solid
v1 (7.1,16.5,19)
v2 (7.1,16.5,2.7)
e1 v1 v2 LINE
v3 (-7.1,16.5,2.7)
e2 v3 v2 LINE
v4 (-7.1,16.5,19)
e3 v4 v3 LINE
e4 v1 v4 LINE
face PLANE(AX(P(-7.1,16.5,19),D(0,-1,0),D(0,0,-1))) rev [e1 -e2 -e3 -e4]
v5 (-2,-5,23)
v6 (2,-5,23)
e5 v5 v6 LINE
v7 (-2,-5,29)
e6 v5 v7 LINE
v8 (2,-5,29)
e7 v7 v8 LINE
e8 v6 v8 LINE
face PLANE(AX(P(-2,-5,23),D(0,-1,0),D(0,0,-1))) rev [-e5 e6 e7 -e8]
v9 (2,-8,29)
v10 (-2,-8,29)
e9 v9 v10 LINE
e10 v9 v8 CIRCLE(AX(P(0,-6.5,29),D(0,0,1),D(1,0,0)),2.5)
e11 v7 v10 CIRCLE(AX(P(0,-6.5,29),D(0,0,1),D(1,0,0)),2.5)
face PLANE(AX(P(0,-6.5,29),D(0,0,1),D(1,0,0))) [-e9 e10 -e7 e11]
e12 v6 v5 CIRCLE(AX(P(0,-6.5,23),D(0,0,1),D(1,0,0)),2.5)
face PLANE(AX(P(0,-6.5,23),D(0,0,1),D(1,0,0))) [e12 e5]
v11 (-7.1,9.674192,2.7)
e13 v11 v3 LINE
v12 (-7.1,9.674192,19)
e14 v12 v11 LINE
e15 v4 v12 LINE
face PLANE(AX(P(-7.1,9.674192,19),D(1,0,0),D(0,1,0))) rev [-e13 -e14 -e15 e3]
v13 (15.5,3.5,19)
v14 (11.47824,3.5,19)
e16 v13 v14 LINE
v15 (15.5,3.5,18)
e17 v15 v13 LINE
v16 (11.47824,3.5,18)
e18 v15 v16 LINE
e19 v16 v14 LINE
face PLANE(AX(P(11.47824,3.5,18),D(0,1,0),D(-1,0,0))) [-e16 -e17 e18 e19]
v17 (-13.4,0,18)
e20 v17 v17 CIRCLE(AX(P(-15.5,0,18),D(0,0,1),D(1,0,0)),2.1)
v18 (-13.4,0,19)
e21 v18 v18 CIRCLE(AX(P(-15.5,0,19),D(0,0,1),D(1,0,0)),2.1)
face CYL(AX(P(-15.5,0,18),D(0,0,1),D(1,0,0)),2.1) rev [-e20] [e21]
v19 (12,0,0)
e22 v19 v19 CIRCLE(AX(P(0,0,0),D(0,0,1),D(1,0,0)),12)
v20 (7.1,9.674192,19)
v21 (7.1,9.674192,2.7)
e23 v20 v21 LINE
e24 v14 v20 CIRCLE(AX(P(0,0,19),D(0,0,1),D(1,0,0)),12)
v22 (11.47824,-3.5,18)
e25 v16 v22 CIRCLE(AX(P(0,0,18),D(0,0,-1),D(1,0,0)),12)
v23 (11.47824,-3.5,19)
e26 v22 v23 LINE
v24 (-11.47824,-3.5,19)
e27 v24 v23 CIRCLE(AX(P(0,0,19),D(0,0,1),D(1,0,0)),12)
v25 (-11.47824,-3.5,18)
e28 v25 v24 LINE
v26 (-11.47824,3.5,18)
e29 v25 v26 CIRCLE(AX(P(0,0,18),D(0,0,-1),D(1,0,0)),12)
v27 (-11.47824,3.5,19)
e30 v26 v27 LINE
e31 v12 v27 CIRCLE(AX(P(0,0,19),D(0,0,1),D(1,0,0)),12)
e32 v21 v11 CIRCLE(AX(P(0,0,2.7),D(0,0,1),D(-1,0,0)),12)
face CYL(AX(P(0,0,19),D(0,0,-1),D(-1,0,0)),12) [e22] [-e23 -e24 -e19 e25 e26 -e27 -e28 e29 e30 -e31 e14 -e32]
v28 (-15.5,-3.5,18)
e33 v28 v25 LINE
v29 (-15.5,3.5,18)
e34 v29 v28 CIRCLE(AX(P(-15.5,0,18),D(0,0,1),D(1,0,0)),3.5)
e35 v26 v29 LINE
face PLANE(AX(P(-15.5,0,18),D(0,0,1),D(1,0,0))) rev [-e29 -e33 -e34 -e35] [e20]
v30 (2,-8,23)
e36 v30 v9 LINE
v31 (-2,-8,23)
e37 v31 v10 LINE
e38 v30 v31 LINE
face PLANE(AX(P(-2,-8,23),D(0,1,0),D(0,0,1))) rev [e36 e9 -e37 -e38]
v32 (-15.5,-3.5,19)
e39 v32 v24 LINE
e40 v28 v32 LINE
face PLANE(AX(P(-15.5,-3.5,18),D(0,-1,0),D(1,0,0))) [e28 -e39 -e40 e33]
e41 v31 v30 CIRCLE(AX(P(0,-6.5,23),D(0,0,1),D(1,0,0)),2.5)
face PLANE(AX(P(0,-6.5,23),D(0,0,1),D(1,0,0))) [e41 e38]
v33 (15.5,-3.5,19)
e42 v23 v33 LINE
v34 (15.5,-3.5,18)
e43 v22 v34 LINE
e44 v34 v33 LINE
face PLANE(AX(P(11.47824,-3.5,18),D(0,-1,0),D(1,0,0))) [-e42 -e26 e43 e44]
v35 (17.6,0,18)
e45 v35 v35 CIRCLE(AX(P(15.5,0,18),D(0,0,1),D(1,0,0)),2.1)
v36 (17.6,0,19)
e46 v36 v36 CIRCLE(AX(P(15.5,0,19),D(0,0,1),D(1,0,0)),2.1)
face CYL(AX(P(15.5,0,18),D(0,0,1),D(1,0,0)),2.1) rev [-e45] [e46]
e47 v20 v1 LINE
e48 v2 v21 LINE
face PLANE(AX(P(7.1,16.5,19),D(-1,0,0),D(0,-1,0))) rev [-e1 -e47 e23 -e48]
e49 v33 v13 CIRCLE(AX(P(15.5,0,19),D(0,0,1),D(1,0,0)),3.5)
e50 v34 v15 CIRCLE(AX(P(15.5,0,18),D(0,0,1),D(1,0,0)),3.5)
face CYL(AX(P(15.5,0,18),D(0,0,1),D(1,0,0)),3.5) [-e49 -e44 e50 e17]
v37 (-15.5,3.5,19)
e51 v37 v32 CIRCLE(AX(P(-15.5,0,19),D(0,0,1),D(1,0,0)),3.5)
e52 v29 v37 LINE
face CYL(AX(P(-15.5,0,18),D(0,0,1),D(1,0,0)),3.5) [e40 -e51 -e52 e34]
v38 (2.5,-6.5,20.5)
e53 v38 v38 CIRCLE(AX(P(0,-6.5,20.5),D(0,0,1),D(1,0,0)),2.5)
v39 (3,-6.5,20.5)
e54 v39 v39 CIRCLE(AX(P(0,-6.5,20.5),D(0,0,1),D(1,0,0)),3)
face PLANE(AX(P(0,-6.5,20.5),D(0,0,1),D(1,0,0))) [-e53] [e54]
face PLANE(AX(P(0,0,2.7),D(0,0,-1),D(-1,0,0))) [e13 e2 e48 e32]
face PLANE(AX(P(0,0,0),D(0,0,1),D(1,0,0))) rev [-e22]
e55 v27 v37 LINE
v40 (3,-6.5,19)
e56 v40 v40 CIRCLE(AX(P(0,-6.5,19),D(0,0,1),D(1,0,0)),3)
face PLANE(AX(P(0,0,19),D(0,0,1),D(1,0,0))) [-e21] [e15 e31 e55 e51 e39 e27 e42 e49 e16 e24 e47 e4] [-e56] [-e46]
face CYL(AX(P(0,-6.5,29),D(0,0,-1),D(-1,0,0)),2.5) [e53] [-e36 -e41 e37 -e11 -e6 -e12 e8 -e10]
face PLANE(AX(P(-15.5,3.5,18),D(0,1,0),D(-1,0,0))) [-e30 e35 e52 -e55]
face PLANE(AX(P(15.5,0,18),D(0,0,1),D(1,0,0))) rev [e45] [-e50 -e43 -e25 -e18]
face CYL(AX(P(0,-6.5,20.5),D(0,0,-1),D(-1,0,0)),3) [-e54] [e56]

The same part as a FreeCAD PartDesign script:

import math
import FreeCAD as App
import Part
import Sketcher
from FreeCAD import Vector

doc = App.newDocument("Part")
body = doc.addObject("PartDesign::Body", "Body")

sketch1 = doc.addObject("Sketcher::SketchObject", "Sketch")
body.addObject(sketch1)
sketch1.AttachmentSupport = (doc.XY_Plane, [""])
sketch1.MapMode = "FlatFace"
sketch1.addGeometry([
    Part.LineSegment(Vector(-7, 16, 0), Vector(-7, 10, 0)),
    Part.ArcOfCircle(Part.Circle(Vector(0, 0, 0), Vector(0, 0, 1), 12), math.radians(126), math.radians(414)),
    Part.LineSegment(Vector(7, 10, 0), Vector(7, 16, 0)),
    Part.LineSegment(Vector(7, 16, 0), Vector(-7, 16, 0)),
], False)
sketch1.addConstraint([
    Sketcher.Constraint("Coincident", 0, 2, 1, 1),
    Sketcher.Constraint("Coincident", 1, 2, 2, 1),
    Sketcher.Constraint("Coincident", 2, 2, 3, 1),
    Sketcher.Constraint("Coincident", 3, 2, 0, 1),
    Sketcher.Constraint("Vertical", 0),
    Sketcher.Constraint("Vertical", 2),
    Sketcher.Constraint("Horizontal", 3),
    Sketcher.Constraint("Coincident", 1, 3, -1, 1),
    Sketcher.Constraint("Horizontal", 0, 2, 1, 2),
    Sketcher.Constraint("Radius", 1, 12.0),
    Sketcher.Constraint("DistanceX", 3, 2, 3, 1, 14.2),
    Sketcher.Constraint("DistanceY", -1, 1, 2, 2, 16.5),
])
pad1 = doc.addObject("PartDesign::Pad", "Pad")
body.addObject(pad1)
pad1.Profile = sketch1
pad1.Length = 19

sketch2 = doc.addObject("Sketcher::SketchObject", "Sketch001")
body.addObject(sketch2)
sketch2.AttachmentSupport = (doc.XY_Plane, [""])
sketch2.MapMode = "FlatFace"
sketch2.addGeometry([
    Part.LineSegment(Vector(-7, 10, 0), Vector(-7, 16, 0)),
    Part.LineSegment(Vector(-7, 16, 0), Vector(7, 16, 0)),
    Part.LineSegment(Vector(7, 16, 0), Vector(7, 10, 0)),
    Part.ArcOfCircle(Part.Circle(Vector(0, 0, 0), Vector(0, 0, 1), 12), math.radians(54), math.radians(126)),
], False)
sketch2.addConstraint([
    Sketcher.Constraint("Coincident", 0, 2, 1, 1),
    Sketcher.Constraint("Coincident", 1, 2, 2, 1),
    Sketcher.Constraint("Coincident", 2, 2, 3, 1),
    Sketcher.Constraint("Coincident", 3, 2, 0, 1),
    Sketcher.Constraint("Vertical", 0),
    Sketcher.Constraint("Horizontal", 1),
    Sketcher.Constraint("Vertical", 2),
    Sketcher.Constraint("Coincident", 3, 3, -1, 1),
    Sketcher.Constraint("Horizontal", 2, 2, 3, 2),
    Sketcher.Constraint("Radius", 3, 12.0),
    Sketcher.Constraint("DistanceX", 1, 1, 1, 2, 14.2),
    Sketcher.Constraint("DistanceY", -1, 1, 0, 2, 16.5),
])
pocket1 = doc.addObject("PartDesign::Pocket", "Pocket")
body.addObject(pocket1)
pocket1.Profile = sketch2
pocket1.Length = 2.7
pocket1.Reversed = True

sketch3 = doc.addObject("Sketcher::SketchObject", "Sketch002")
body.addObject(sketch3)
sketch3.AttachmentSupport = (doc.XY_Plane, [""])
sketch3.MapMode = "FlatFace"
sketch3.AttachmentOffset = App.Placement(Vector(0, 0, 19), App.Rotation())
sketch3.addGeometry([
    Part.LineSegment(Vector(-11.5, 3.5, 0), Vector(-15.5, 3.5, 0)),
    Part.ArcOfCircle(Part.Circle(Vector(-15.5, 0, 0), Vector(0, 0, 1), 3.5), math.radians(90), math.radians(270)),
    Part.LineSegment(Vector(-15.5, -3.5, 0), Vector(-11.5, -3.5, 0)),
    Part.ArcOfCircle(Part.Circle(Vector(0, 0, 0), Vector(0, 0, 1), 12), math.radians(163), math.radians(197)),
    Part.Circle(Vector(-15.5, 0, 0), Vector(0, 0, 1), 2.1),
    Part.LineSegment(Vector(15.5, 3.5, 0), Vector(11.5, 3.5, 0)),
    Part.ArcOfCircle(Part.Circle(Vector(0, 0, 0), Vector(0, 0, 1), 12), math.radians(-17), math.radians(17)),
    Part.LineSegment(Vector(11.5, -3.5, 0), Vector(15.5, -3.5, 0)),
    Part.ArcOfCircle(Part.Circle(Vector(15.5, 0, 0), Vector(0, 0, 1), 3.5), math.radians(-90), math.radians(90)),
    Part.Circle(Vector(15.5, 0, 0), Vector(0, 0, 1), 2.1),
], False)
sketch3.addConstraint([
    Sketcher.Constraint("Tangent", 0, 2, 1, 1),
    Sketcher.Constraint("Tangent", 1, 2, 2, 1),
    Sketcher.Constraint("Coincident", 2, 2, 3, 2),
    Sketcher.Constraint("Coincident", 3, 1, 0, 1),
    Sketcher.Constraint("Coincident", 5, 2, 6, 2),
    Sketcher.Constraint("Coincident", 6, 1, 7, 1),
    Sketcher.Constraint("Tangent", 7, 2, 8, 1),
    Sketcher.Constraint("Tangent", 8, 2, 5, 1),
    Sketcher.Constraint("Horizontal", 0),
    Sketcher.Constraint("Horizontal", 2),
    Sketcher.Constraint("Horizontal", 5),
    Sketcher.Constraint("Horizontal", 7),
    Sketcher.Constraint("Coincident", 3, 3, -1, 1),
    Sketcher.Constraint("Coincident", 6, 3, -1, 1),
    Sketcher.Constraint("Coincident", 4, 3, 1, 3),
    Sketcher.Constraint("Coincident", 9, 3, 8, 3),
    Sketcher.Constraint("Equal", 3, 6),
    Sketcher.Constraint("Equal", 1, 8),
    Sketcher.Constraint("Equal", 4, 9),
    Sketcher.Constraint("Symmetric", 1, 3, 8, 3, -1, 1),
    Sketcher.Constraint("PointOnObject", 1, 3, -1),
    Sketcher.Constraint("Radius", 3, 12.0),
    Sketcher.Constraint("Diameter", 4, 4.2),
    Sketcher.Constraint("Radius", 1, 3.5),
    Sketcher.Constraint("DistanceX", 1, 3, 8, 3, 31.0),
])
pad2 = doc.addObject("PartDesign::Pad", "Pad001")
body.addObject(pad2)
pad2.Profile = sketch3
pad2.Length = 1
pad2.Reversed = True

sketch4 = doc.addObject("Sketcher::SketchObject", "Sketch003")
body.addObject(sketch4)
sketch4.AttachmentSupport = (doc.XY_Plane, [""])
sketch4.MapMode = "FlatFace"
sketch4.AttachmentOffset = App.Placement(Vector(0, 0, 19), App.Rotation())
sketch4.addGeometry(Part.Circle(Vector(0, -6.5, 0), Vector(0, 0, 1), 3), False)
sketch4.addConstraint([
    Sketcher.Constraint("PointOnObject", 0, 3, -2),
    Sketcher.Constraint("Diameter", 0, 6.0),
    Sketcher.Constraint("DistanceY", 0, 3, -1, 1, 6.5),
])
pad3 = doc.addObject("PartDesign::Pad", "Pad002")
body.addObject(pad3)
pad3.Profile = sketch4
pad3.Length = 1.5

sketch5 = doc.addObject("Sketcher::SketchObject", "Sketch004")
body.addObject(sketch5)
sketch5.AttachmentSupport = (doc.XY_Plane, [""])
sketch5.MapMode = "FlatFace"
sketch5.AttachmentOffset = App.Placement(Vector(0, 0, 20.5), App.Rotation())
sketch5.addGeometry(Part.Circle(Vector(0, -6.5, 0), Vector(0, 0, 1), 2.5), False)
sketch5.addConstraint([
    Sketcher.Constraint("PointOnObject", 0, 3, -2),
    Sketcher.Constraint("Diameter", 0, 5.0),
    Sketcher.Constraint("DistanceY", 0, 3, -1, 1, 6.5),
])
pad4 = doc.addObject("PartDesign::Pad", "Pad003")
body.addObject(pad4)
pad4.Profile = sketch5
pad4.Length = 8.5

sketch6 = doc.addObject("Sketcher::SketchObject", "Sketch005")
body.addObject(sketch6)
sketch6.AttachmentSupport = (doc.XY_Plane, [""])
sketch6.MapMode = "FlatFace"
sketch6.AttachmentOffset = App.Placement(Vector(0, 0, 29), App.Rotation())
sketch6.addGeometry([
    Part.LineSegment(Vector(-2, -5, 0), Vector(2, -5, 0)),
    Part.ArcOfCircle(Part.Circle(Vector(0, -6.5, 0), Vector(0, 0, 1), 2.5), math.radians(37), math.radians(143)),
    Part.LineSegment(Vector(2, -8, 0), Vector(-2, -8, 0)),
    Part.ArcOfCircle(Part.Circle(Vector(0, -6.5, 0), Vector(0, 0, 1), 2.5), math.radians(-143), math.radians(-37)),
], False)
sketch6.addConstraint([
    Sketcher.Constraint("Coincident", 0, 1, 1, 2),
    Sketcher.Constraint("Coincident", 1, 1, 0, 2),
    Sketcher.Constraint("Coincident", 2, 1, 3, 2),
    Sketcher.Constraint("Coincident", 3, 1, 2, 2),
    Sketcher.Constraint("Horizontal", 0),
    Sketcher.Constraint("Horizontal", 2),
    Sketcher.Constraint("Coincident", 3, 3, 1, 3),
    Sketcher.Constraint("Equal", 1, 3),
    Sketcher.Constraint("PointOnObject", 1, 3, -2),
    Sketcher.Constraint("Vertical", 1, 1, 2, 1),
    Sketcher.Constraint("Radius", 1, 2.5),
    Sketcher.Constraint("DistanceX", 0, 1, 0, 2, 4.0),
    Sketcher.Constraint("DistanceY", 0, 1, -1, 1, 5.0),
])
pocket2 = doc.addObject("PartDesign::Pocket", "Pocket001")
body.addObject(pocket2)
pocket2.Profile = sketch6
pocket2.Length = 6

doc.recompute()
